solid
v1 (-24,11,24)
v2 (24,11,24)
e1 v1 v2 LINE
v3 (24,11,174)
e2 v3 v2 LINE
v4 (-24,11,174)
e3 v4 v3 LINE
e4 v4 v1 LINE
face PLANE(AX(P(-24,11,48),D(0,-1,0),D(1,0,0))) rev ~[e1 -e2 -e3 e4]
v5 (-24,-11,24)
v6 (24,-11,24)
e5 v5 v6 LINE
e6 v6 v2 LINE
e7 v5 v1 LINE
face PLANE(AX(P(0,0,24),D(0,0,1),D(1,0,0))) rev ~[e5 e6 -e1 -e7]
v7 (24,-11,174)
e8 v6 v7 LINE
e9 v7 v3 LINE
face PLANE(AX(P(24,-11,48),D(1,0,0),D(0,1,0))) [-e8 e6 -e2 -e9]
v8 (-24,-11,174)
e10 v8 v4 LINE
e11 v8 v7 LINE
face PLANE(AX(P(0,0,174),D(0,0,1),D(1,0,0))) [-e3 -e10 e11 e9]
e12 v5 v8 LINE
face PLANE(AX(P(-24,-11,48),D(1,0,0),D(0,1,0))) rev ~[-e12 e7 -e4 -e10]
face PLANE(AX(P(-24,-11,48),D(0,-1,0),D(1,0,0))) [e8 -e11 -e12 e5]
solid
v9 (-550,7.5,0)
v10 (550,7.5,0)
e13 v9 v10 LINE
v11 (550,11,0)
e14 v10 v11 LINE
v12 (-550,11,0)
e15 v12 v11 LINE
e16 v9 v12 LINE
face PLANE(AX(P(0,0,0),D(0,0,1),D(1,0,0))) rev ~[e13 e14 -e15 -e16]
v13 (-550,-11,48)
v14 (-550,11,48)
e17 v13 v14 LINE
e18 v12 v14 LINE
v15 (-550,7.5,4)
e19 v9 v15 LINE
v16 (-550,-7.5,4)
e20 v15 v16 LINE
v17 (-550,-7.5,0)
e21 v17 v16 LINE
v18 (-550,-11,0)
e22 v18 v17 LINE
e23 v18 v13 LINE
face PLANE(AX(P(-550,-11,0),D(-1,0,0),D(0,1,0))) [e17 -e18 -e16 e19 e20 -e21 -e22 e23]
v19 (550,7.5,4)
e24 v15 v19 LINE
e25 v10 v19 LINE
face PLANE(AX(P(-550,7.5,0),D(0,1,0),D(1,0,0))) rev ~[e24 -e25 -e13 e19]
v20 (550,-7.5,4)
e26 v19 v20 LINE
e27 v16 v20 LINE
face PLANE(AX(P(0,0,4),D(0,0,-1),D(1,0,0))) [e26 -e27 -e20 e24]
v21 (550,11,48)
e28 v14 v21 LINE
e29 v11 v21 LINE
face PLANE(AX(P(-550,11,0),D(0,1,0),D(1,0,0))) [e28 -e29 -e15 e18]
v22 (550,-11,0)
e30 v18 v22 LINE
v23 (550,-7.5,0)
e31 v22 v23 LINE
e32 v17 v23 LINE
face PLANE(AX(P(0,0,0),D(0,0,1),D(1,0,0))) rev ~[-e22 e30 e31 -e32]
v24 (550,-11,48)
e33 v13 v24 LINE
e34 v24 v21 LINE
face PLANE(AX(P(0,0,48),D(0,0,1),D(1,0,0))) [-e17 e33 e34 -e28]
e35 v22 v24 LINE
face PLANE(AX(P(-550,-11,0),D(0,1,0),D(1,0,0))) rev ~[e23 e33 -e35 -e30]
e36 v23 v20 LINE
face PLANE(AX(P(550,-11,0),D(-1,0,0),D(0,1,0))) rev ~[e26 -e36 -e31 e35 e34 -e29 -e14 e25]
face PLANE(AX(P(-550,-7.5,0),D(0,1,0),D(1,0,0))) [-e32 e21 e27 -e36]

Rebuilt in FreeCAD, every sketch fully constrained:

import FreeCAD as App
import Part
import Sketcher

V = App.Vector


def add_polygon(sketch, points):
    """Adds a closed chain of lines whose ends are joined by coincident constraints."""
    first, n = sketch.GeometryCount, len(points)
    for a, b in zip(points, points[1:] + points[:1]):
        sketch.addGeometry(Part.LineSegment(App.Vector(*a, 0), App.Vector(*b, 0)), False)
    for i in range(n):
        sketch.addConstraint(Sketcher.Constraint("Coincident", first + i, 2, first + (i + 1) % n, 1))

doc = App.newDocument("Part")
params = doc.addObject("Spreadsheet::Sheet", "Params")
for row, (alias, value) in enumerate([
    ("sketch1_width", "1100 mm"),
    ("sketch1_height", "22 mm"),
    ("pad1_length", "48 mm"),
    ("sketch2_width", "1100 mm"),
    ("sketch2_height", "15 mm"),
    ("pocket1_length", "4 mm"),
    ("sketch3_width", "48 mm"),
    ("sketch3_height", "22 mm"),
    ("pad2_length", "126 mm"),
    ("pad2_length2", "24 mm"),
], start=1):
    params.set(f"A{row}", alias)
    params.set(f"B{row}", "=" + value)
    params.setAlias(f"B{row}", alias)

body = doc.addObject("PartDesign::Body", "Body")

# Sketch on XY plane
sketch1 = body.newObject("Sketcher::SketchObject", "Sketch")
sketch1.AttachmentSupport = (doc.getObject("XY_Plane"), [""])
sketch1.MapMode = "FlatFace"
add_polygon(sketch1, [(-550, 11), (-550, -11), (550, -11), (550, 11)])  # lines 0-3
sketch1.addConstraint([
    Sketcher.Constraint("Vertical", 0),
    Sketcher.Constraint("Horizontal", 1),
    Sketcher.Constraint("Vertical", 2),
    Sketcher.Constraint("Horizontal", 3),
    Sketcher.Constraint("Symmetric", 0, 2, 2, 2, -1, 1),
    Sketcher.Constraint("DistanceX", 1, 1, 1, 2, 1100.0),
    Sketcher.Constraint("DistanceY", 0, 2, 0, 1, 22.0),
])
sketch1.setExpression("Constraints[9]", "Params.sketch1_width")
sketch1.setExpression("Constraints[10]", "Params.sketch1_height")
pad1 = body.newObject("PartDesign::Pad", "Pad")
pad1.Profile = sketch1
pad1.setExpression("Length", "Params.pad1_length")

# Sketch on XY plane
sketch2 = body.newObject("Sketcher::SketchObject", "Sketch001")
sketch2.AttachmentSupport = (doc.getObject("XY_Plane"), [""])
sketch2.MapMode = "FlatFace"
add_polygon(sketch2, [(-550, -7.5), (-550, 7.5), (550, 7.5), (550, -7.5)])  # lines 0-3
sketch2.addConstraint([
    Sketcher.Constraint("Vertical", 0),
    Sketcher.Constraint("Horizontal", 1),
    Sketcher.Constraint("Vertical", 2),
    Sketcher.Constraint("Horizontal", 3),
    Sketcher.Constraint("Symmetric", 0, 2, 2, 2, -1, 1),
    Sketcher.Constraint("DistanceX", 1, 1, 1, 2, 1100.0),
    Sketcher.Constraint("DistanceY", 0, 1, 0, 2, 15.0),
])
sketch2.setExpression("Constraints[9]", "Params.sketch2_width")
sketch2.setExpression("Constraints[10]", "Params.sketch2_height")
pocket1 = body.newObject("PartDesign::Pocket", "Pocket")
pocket1.Profile = sketch2
pocket1.setExpression("Length", "Params.pocket1_length")
pocket1.Reversed = True
body2 = doc.addObject("PartDesign::Body", "Body001")

# Sketch on XY plane
sketch3 = body2.newObject("Sketcher::SketchObject", "Sketch002")
sketch3.AttachmentSupport = (doc.getObject("XY_Plane001"), [""])
sketch3.MapMode = "FlatFace"
sketch3.AttachmentOffset = App.Placement(V(0, 0, 48), App.Rotation())
add_polygon(sketch3, [(-24, 11), (-24, -11), (24, -11), (24, 11)])  # lines 0-3
sketch3.addConstraint([
    Sketcher.Constraint("Vertical", 0),
    Sketcher.Constraint("Horizontal", 1),
    Sketcher.Constraint("Vertical", 2),
    Sketcher.Constraint("Horizontal", 3),
    Sketcher.Constraint("Symmetric", 0, 2, 2, 2, -1, 1),
    Sketcher.Constraint("DistanceX", 1, 1, 1, 2, 48.0),
    Sketcher.Constraint("DistanceY", 0, 2, 0, 1, 22.0),
])
sketch3.setExpression("Constraints[9]", "Params.sketch3_width")
sketch3.setExpression("Constraints[10]", "Params.sketch3_height")
pad2 = body2.newObject("PartDesign::Pad", "Pad001")
pad2.Profile = sketch3
pad2.Type = "TwoLengths"
pad2.setExpression("Length", "Params.pad2_length")
pad2.setExpression("Length2", "Params.pad2_length2")

doc.recompute()
